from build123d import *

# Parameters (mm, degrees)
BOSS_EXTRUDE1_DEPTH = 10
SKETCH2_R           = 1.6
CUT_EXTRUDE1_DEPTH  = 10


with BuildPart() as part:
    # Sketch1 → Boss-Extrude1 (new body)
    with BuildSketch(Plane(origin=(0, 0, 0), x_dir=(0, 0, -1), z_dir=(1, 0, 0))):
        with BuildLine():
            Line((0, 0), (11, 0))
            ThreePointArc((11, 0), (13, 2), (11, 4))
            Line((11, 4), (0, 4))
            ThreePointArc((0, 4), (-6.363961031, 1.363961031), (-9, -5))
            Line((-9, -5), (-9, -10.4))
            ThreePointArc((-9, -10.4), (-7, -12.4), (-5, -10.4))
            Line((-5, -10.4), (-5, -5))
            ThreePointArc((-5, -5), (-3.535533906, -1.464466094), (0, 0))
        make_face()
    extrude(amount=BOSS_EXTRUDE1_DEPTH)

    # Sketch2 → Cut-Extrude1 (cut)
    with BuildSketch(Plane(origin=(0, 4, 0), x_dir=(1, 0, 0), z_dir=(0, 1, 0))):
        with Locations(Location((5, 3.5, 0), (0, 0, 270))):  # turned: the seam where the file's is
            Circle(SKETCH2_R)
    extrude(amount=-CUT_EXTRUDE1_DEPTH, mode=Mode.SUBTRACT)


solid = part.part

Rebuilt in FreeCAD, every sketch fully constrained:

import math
import FreeCAD as App
import Part
import Sketcher

V = App.Vector

doc = App.newDocument("Part")
body = doc.addObject("PartDesign::Body", "Body")

# Sketch on YZ plane
sketch1 = body.newObject("Sketcher::SketchObject", "Sketch")
sketch1.AttachmentSupport = (doc.getObject("YZ_Plane"), [""])
sketch1.MapMode = "FlatFace"
sketch1.addGeometry(Part.LineSegment(V(0, 0, 0), V(0, -11, 0)), False)
sketch1.addGeometry(Part.ArcOfCircle(Part.Circle(V(2, -11, 0), V(0, 0, 1), 2), math.radians(180), math.radians(360)), False)
sketch1.addGeometry(Part.LineSegment(V(4, -11, 0), V(4, 0, 0)), False)
sketch1.addGeometry(Part.ArcOfCircle(Part.Circle(V(-5, 0, 0), V(0, 0, 1), 9), math.radians(0), math.radians(90)), False)
sketch1.addGeometry(Part.LineSegment(V(-5, 9, 0), V(-10.4, 9, 0)), False)
sketch1.addGeometry(Part.ArcOfCircle(Part.Circle(V(-10.4, 7, 0), V(0, 0, 1), 2), math.radians(90), math.radians(270)), False)
sketch1.addGeometry(Part.LineSegment(V(-10.4, 5, 0), V(-5, 5, 0)), False)
sketch1.addGeometry(Part.ArcOfCircle(Part.Circle(V(-5, 0, 0), V(0, 0, 1), 5), math.radians(0), math.radians(90)), False)
sketch1.addConstraint(Sketcher.Constraint("Tangent", 0, 2, 1, 1))
sketch1.addConstraint(Sketcher.Constraint("Tangent", 1, 2, 2, 1))
sketch1.addConstraint(Sketcher.Constraint("Tangent", 2, 2, 3, 1))
sketch1.addConstraint(Sketcher.Constraint("Tangent", 3, 2, 4, 1))
sketch1.addConstraint(Sketcher.Constraint("Tangent", 4, 2, 5, 1))
sketch1.addConstraint(Sketcher.Constraint("Tangent", 5, 2, 6, 1))
sketch1.addConstraint(Sketcher.Constraint("Tangent", 6, 2, 7, 2))
sketch1.addConstraint(Sketcher.Constraint("Tangent", 7, 1, 0, 1))
sketch1.addConstraint(Sketcher.Constraint("Vertical", 0))
sketch1.addConstraint(Sketcher.Constraint("Vertical", 2))
sketch1.addConstraint(Sketcher.Constraint("Horizontal", 4))
sketch1.addConstraint(Sketcher.Constraint("Horizontal", 6))
sketch1.addConstraint(Sketcher.Constraint("Coincident", 7, 1, -1, 1))
sketch1.addConstraint(Sketcher.Constraint("Coincident", 7, 3, 3, 3))
sketch1.addConstraint(Sketcher.Constraint("Radius", 1, 2.0))
sketch1.addConstraint(Sketcher.Constraint("Radius", 3, 9.0))
sketch1.addConstraint(Sketcher.Constraint("DistanceY", 0, 2, 0, 1, 11.0))
sketch1.addConstraint(Sketcher.Constraint("DistanceX", 4, 2, 4, 1, 5.4))
pad1 = body.newObject("PartDesign::Pad", "Pad")
pad1.Profile = sketch1
pad1.Length = 10

# Sketch on XZ plane
sketch2 = body.newObject("Sketcher::SketchObject", "Sketch001")
sketch2.AttachmentSupport = (doc.getObject("XZ_Plane"), [""])
sketch2.MapMode = "FlatFace"
sketch2.AttachmentOffset = App.Placement(V(0, 0, -4), App.Rotation())
sketch2.addGeometry(Part.Circle(V(5, -3.5, 0), V(0, 0, 1), 1.6), False)
sketch2.addConstraint(Sketcher.Constraint("Diameter", 0, 3.2))
sketch2.addConstraint(Sketcher.Constraint("DistanceX", -1, 1, 0, 3, 5.0))
sketch2.addConstraint(Sketcher.Constraint("DistanceY", 0, 3, -1, 1, 3.5))
pocket1 = body.newObject("PartDesign::Pocket", "Pocket")
pocket1.Profile = sketch2
pocket1.Length = 10
pocket1.Reversed = True

doc.recompute()
